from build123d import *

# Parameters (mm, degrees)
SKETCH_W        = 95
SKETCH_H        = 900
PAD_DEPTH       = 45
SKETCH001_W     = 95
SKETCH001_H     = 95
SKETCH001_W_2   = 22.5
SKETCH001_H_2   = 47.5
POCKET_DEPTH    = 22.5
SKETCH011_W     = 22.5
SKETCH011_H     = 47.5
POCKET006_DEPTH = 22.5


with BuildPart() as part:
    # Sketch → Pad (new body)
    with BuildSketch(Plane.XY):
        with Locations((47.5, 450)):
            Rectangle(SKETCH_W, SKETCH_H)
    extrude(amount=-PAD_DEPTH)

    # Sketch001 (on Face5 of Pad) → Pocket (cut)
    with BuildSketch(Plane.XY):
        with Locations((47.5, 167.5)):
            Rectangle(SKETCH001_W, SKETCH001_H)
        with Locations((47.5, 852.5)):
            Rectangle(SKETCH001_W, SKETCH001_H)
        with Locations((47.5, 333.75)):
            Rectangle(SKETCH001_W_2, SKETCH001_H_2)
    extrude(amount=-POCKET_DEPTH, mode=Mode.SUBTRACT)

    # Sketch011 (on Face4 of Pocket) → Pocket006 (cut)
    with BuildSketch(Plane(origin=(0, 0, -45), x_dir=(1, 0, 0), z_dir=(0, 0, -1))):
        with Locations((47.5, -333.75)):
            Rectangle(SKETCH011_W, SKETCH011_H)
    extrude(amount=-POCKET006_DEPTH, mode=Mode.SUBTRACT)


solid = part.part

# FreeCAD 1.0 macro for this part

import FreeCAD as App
import Part
import Sketcher

V = App.Vector
Q = App.Units.Quantity


def add_polygon(sketch, points):
    """Adds a closed chain of lines whose ends are joined by coincident constraints."""
    first, n = sketch.GeometryCount, len(points)
    for a, b in zip(points, points[1:] + points[:1]):
        sketch.addGeometry(Part.LineSegment(App.Vector(*a, 0), App.Vector(*b, 0)), False)
    for i in range(n):
        sketch.addConstraint(Sketcher.Constraint("Coincident", first + i, 2, first + (i + 1) % n, 1))

doc = App.newDocument("Part")
params = doc.addObject("Spreadsheet::Sheet", "Params")
for row, (alias, value) in enumerate([
    ("sketch1_width", "95 mm"),
    ("sketch1_height", "900 mm"),
    ("pad1_length", "45 mm"),
    ("sketch2_width", "95 mm"),
    ("sketch2_width2", "22.5 mm"),
    ("sketch2_height", "47.5 mm"),
    ("pocket1_length", "22.5 mm"),
    ("sketch3_width", "22.5 mm"),
    ("sketch3_height", "47.5 mm"),
    ("pocket2_length", "22.5 mm"),
], start=1):
    params.set(f"A{row}", alias)
    params.set(f"B{row}", "=" + value)
    params.setAlias(f"B{row}", alias)

body = doc.addObject("PartDesign::Body", "Body")

sketch1 = doc.addObject("Sketcher::SketchObject", "Sketch")
body.addObject(sketch1)
sketch1.AttachmentSupport = (doc.XY_Plane, [""])
sketch1.MapMode = "FlatFace"
add_polygon(sketch1, [(0, 900), (0, 0), (95, 0), (95, 900)])
sketch1.addConstraint(Sketcher.Constraint("Vertical", 0))
sketch1.addConstraint(Sketcher.Constraint("Horizontal", 1))
sketch1.addConstraint(Sketcher.Constraint("Vertical", 2))
sketch1.addConstraint(Sketcher.Constraint("Horizontal", 3))
sketch1.addConstraint(Sketcher.Constraint("Coincident", 0, 2, -1, 1))
sketch1.addConstraint(Sketcher.Constraint("DistanceX", 1, 1, 1, 2, Q("95 mm")))
sketch1.addConstraint(Sketcher.Constraint("DistanceY", 0, 2, 0, 1, Q("900 mm")))
sketch1.setExpression("Constraints[9]", "Params.sketch1_width")
sketch1.setExpression("Constraints[10]", "Params.sketch1_height")
pad1 = doc.addObject("PartDesign::Pad", "Pad")
body.addObject(pad1)
pad1.Profile = sketch1
pad1.setExpression("Length", "Params.pad1_length")
pad1.Reversed = True

sketch2 = doc.addObject("Sketcher::SketchObject", "Sketch001")
body.addObject(sketch2)
sketch2.AttachmentSupport = (doc.XY_Plane, [""])
sketch2.MapMode = "FlatFace"
add_polygon(sketch2, [(0, 215), (0, 120), (95, 120), (95, 215)])
add_polygon(sketch2, [(0, 900), (0, 805), (95, 805), (95, 900)])
add_polygon(sketch2, [(36, 358), (36, 310), (59, 310), (59, 358)])
sketch2.addConstraint(Sketcher.Constraint("Vertical", 0))
sketch2.addConstraint(Sketcher.Constraint("Horizontal", 1))
sketch2.addConstraint(Sketcher.Constraint("Vertical", 2))
sketch2.addConstraint(Sketcher.Constraint("Horizontal", 3))
sketch2.addConstraint(Sketcher.Constraint("Vertical", 4))
sketch2.addConstraint(Sketcher.Constraint("Horizontal", 5))
sketch2.addConstraint(Sketcher.Constraint("Vertical", 6))
sketch2.addConstraint(Sketcher.Constraint("Horizontal", 7))
sketch2.addConstraint(Sketcher.Constraint("Vertical", 8))
sketch2.addConstraint(Sketcher.Constraint("Horizontal", 9))
sketch2.addConstraint(Sketcher.Constraint("Vertical", 10))
sketch2.addConstraint(Sketcher.Constraint("Horizontal", 11))
sketch2.addConstraint(Sketcher.Constraint("PointOnObject", 0, 2, -2))
sketch2.addConstraint(Sketcher.Constraint("PointOnObject", 4, 2, -2))
sketch2.addConstraint(Sketcher.Constraint("Vertical", 2, 2, 5, 2))
sketch2.addConstraint(Sketcher.Constraint("Equal", 7, 0))
sketch2.addConstraint(Sketcher.Constraint("Equal", 2, 4))
sketch2.addConstraint(Sketcher.Constraint("DistanceX", 1, 1, 1, 2, Q("95 mm")))
sketch2.addConstraint(Sketcher.Constraint("DistanceX", 9, 1, 9, 2, Q("22.5 mm")))
sketch2.addConstraint(Sketcher.Constraint("DistanceY", 8, 2, 8, 1, Q("47.5 mm")))
sketch2.addConstraint(Sketcher.Constraint("DistanceY", -1, 1, 0, 2, Q("120 mm")))
sketch2.addConstraint(Sketcher.Constraint("DistanceY", -1, 1, 4, 2, Q("805 mm")))
sketch2.addConstraint(Sketcher.Constraint("DistanceY", -1, 1, 8, 2, Q("310 mm")))
sketch2.addConstraint(Sketcher.Constraint("DistanceX", -1, 1, 8, 2, Q("36.25 mm")))
sketch2.setExpression("Constraints[29]", "Params.sketch2_width")
sketch2.setExpression("Constraints[30]", "Params.sketch2_width2")
sketch2.setExpression("Constraints[31]", "Params.sketch2_height")
pocket1 = doc.addObject("PartDesign::Pocket", "Pocket")
body.addObject(pocket1)
pocket1.Profile = sketch2
pocket1.setExpression("Length", "Params.pocket1_length")

sketch3 = doc.addObject("Sketcher::SketchObject", "Sketch002")
body.addObject(sketch3)
sketch3.AttachmentSupport = (doc.XY_Plane, [""])
sketch3.MapMode = "FlatFace"
sketch3.AttachmentOffset = App.Placement(V(0, 0, -45), App.Rotation())
add_polygon(sketch3, [(36, 310), (36, 358), (59, 358), (59, 310)])
sketch3.addConstraint(Sketcher.Constraint("Vertical", 0))
sketch3.addConstraint(Sketcher.Constraint("Horizontal", 1))
sketch3.addConstraint(Sketcher.Constraint("Vertical", 2))
sketch3.addConstraint(Sketcher.Constraint("Horizontal", 3))
sketch3.addConstraint(Sketcher.Constraint("DistanceX", 1, 1, 1, 2, Q("22.5 mm")))
sketch3.addConstraint(Sketcher.Constraint("DistanceY", 0, 1, 0, 2, Q("47.5 mm")))
sketch3.addConstraint(Sketcher.Constraint("DistanceY", -1, 1, 2, 2, Q("310 mm")))
sketch3.addConstraint(Sketcher.Constraint("DistanceX", -1, 1, 0, 2, Q("36.25 mm")))
sketch3.setExpression("Constraints[8]", "Params.sketch3_width")
sketch3.setExpression("Constraints[9]", "Params.sketch3_height")
pocket2 = doc.addObject("PartDesign::Pocket", "Pocket001")
body.addObject(pocket2)
pocket2.Profile = sketch3
pocket2.setExpression("Length", "Params.pocket2_length")
pocket2.Reversed = True

doc.recompute()
